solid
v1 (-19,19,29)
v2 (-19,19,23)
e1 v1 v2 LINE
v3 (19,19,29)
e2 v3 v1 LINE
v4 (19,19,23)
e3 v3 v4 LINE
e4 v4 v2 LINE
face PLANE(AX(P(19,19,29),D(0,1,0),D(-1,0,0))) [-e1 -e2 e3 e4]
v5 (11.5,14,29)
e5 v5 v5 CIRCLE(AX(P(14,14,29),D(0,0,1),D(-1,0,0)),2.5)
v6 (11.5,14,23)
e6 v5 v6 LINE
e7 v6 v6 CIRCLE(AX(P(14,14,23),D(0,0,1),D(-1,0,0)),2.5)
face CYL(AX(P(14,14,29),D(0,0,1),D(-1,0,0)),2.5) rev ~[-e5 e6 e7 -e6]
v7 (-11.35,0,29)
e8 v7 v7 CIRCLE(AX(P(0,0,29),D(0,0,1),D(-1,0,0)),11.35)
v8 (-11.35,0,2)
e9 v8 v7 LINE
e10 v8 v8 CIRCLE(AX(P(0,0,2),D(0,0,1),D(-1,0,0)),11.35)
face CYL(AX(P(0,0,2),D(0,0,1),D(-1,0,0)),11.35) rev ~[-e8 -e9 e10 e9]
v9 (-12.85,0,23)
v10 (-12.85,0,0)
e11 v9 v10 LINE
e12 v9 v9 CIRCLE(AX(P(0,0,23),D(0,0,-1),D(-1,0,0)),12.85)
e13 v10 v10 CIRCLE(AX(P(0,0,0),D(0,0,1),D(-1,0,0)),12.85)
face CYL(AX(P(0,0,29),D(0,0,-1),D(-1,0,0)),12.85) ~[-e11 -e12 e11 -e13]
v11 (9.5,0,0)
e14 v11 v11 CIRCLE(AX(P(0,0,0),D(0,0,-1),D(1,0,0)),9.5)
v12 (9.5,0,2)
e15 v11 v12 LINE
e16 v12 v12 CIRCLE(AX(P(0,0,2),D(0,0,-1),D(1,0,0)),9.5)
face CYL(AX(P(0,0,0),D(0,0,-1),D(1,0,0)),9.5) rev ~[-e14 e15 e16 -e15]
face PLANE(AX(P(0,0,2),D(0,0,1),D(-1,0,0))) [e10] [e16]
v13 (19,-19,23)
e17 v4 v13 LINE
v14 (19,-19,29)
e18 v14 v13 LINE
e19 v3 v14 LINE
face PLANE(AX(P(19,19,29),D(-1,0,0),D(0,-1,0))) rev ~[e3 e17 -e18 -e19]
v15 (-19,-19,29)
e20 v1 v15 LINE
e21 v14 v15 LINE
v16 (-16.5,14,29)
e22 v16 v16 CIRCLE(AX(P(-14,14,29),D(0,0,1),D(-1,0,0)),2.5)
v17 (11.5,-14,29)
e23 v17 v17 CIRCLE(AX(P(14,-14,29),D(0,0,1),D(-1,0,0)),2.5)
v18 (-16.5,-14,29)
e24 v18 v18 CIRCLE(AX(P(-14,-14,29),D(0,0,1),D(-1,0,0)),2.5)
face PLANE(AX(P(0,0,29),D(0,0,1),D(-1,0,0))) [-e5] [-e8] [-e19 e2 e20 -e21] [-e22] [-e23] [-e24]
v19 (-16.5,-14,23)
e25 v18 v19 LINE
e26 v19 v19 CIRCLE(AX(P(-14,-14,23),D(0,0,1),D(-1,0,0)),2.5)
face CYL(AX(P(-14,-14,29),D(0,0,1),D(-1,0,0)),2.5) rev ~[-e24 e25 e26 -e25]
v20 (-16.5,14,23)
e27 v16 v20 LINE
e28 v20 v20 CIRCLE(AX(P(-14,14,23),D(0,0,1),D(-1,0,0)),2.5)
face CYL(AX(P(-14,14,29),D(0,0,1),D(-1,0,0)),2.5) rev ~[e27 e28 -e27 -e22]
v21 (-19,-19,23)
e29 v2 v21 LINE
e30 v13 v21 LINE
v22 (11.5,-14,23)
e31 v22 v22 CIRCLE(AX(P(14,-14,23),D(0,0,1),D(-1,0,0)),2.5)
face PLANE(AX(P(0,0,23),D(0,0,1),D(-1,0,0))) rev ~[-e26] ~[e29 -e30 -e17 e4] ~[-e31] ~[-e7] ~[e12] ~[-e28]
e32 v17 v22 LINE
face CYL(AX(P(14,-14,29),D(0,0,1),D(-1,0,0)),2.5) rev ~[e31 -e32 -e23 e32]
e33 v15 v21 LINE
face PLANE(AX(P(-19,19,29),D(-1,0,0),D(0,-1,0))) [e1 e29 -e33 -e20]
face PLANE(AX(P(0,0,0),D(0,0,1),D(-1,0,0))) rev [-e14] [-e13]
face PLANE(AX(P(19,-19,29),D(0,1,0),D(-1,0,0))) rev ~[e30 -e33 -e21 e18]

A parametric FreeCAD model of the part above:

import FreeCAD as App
import Part
import Sketcher
from FreeCAD import Vector


def add_polygon(sketch, points):
    """Adds a closed chain of lines whose ends are joined by coincident constraints."""
    first, n = sketch.GeometryCount, len(points)
    for a, b in zip(points, points[1:] + points[:1]):
        sketch.addGeometry(Part.LineSegment(App.Vector(*a, 0), App.Vector(*b, 0)), False)
    for i in range(n):
        sketch.addConstraint(Sketcher.Constraint("Coincident", first + i, 2, first + (i + 1) % n, 1))

doc = App.newDocument("Part")
body = doc.addObject("PartDesign::Body", "Body")

# Sketch on XZ plane
sketch1 = body.newObject("Sketcher::SketchObject", "Sketch")
sketch1.AttachmentSupport = (doc.getObject("XZ_Plane"), [""])
sketch1.MapMode = "FlatFace"
add_polygon(sketch1, [(-11.3, 2), (-11.3, 29), (-12.8, 29), (-12.8, 0), (0, 0), (0, 2)])  # lines 0-5
sketch1.addConstraint(Sketcher.Constraint("Vertical", 0))
sketch1.addConstraint(Sketcher.Constraint("Horizontal", 1))
sketch1.addConstraint(Sketcher.Constraint("Vertical", 2))
sketch1.addConstraint(Sketcher.Constraint("Horizontal", 3))
sketch1.addConstraint(Sketcher.Constraint("Vertical", 4))
sketch1.addConstraint(Sketcher.Constraint("Horizontal", 5))
sketch1.addConstraint(Sketcher.Constraint("Coincident", 3, 2, -1, 1))
sketch1.addConstraint(Sketcher.Constraint("DistanceY", 0, 1, 0, 2, 27.0))
sketch1.addConstraint(Sketcher.Constraint("DistanceY", 2, 2, 2, 1, 29.0))
sketch1.addConstraint(Sketcher.Constraint("DistanceX", 1, 2, 1, 1, 1.5))
sketch1.addConstraint(Sketcher.Constraint("DistanceX", 3, 1, 3, 2, 12.85))
revolution = body.newObject("PartDesign::Revolution", "Revolution")
revolution.Profile = sketch1
revolution.ReferenceAxis = (sketch1, ["V_Axis"])
revolution.Angle = 360

# Sketch on XY plane
sketch2 = body.newObject("Sketcher::SketchObject", "Sketch001")
sketch2.AttachmentSupport = (doc.getObject("XY_Plane"), [""])
sketch2.MapMode = "FlatFace"
sketch2.addGeometry(Part.Circle(Vector(0, 0, 0), Vector(0, 0, 1), 10), False)
sketch2.addConstraint(Sketcher.Constraint("Coincident", 0, 3, -1, 1))
sketch2.addConstraint(Sketcher.Constraint("Diameter", 0, 19.0))
pocket1 = body.newObject("PartDesign::Pocket", "Pocket")
pocket1.Profile = sketch2
pocket1.Length = 2
pocket1.Reversed = True

# Sketch on XY plane
sketch3 = body.newObject("Sketcher::SketchObject", "Sketch002")
sketch3.AttachmentSupport = (doc.getObject("XY_Plane"), [""])
sketch3.MapMode = "FlatFace"
sketch3.AttachmentOffset = App.Placement(Vector(0, 0, 29), App.Rotation())
add_polygon(sketch3, [(19, -19), (19, 19), (-19, 19), (-19, -19)])  # lines 0-3
sketch3.addGeometry(Part.Circle(Vector(14, 14, 0), Vector(0, 0, 1), 2.5), False)  # 4
sketch3.addGeometry(Part.Circle(Vector(-14, 14, 0), Vector(0, 0, 1), 2.5), False)  # 5
sketch3.addGeometry(Part.Circle(Vector(14, -14, 0), Vector(0, 0, 1), 2.5), False)  # 6
sketch3.addGeometry(Part.Circle(Vector(0, 0, 0), Vector(0, 0, 1), 11.3), False)  # 7
sketch3.addGeometry(Part.Circle(Vector(-14, -14, 0), Vector(0, 0, 1), 2.5), False)  # 8
sketch3.addConstraint(Sketcher.Constraint("Vertical", 0))
sketch3.addConstraint(Sketcher.Constraint("Horizontal", 1))
sketch3.addConstraint(Sketcher.Constraint("Vertical", 2))
sketch3.addConstraint(Sketcher.Constraint("Horizontal", 3))
sketch3.addConstraint(Sketcher.Constraint("Coincident", 7, 3, -1, 1))
sketch3.addConstraint(Sketcher.Constraint("Equal", 4, 5))
sketch3.addConstraint(Sketcher.Constraint("Equal", 5, 6))
sketch3.addConstraint(Sketcher.Constraint("Equal", 6, 8))
sketch3.addConstraint(Sketcher.Constraint("Symmetric", 5, 3, 6, 3, -1, 1))
sketch3.addConstraint(Sketcher.Constraint("Symmetric", 4, 3, 8, 3, -1, 1))
sketch3.addConstraint(Sketcher.Constraint("Symmetric", 0, 2, 2, 2, -1, 1))
sketch3.addConstraint(Sketcher.Constraint("Symmetric", 4, 3, 5, 3, -2))
sketch3.addConstraint(Sketcher.Constraint("Equal", 3, 0))
sketch3.addConstraint(Sketcher.Constraint("Diameter", 4, 5.0))
sketch3.addConstraint(Sketcher.Constraint("Diameter", 7, 22.7))
sketch3.addConstraint(Sketcher.Constraint("DistanceX", 1, 2, 1, 1, 38.0))
sketch3.addConstraint(Sketcher.Constraint("DistanceX", -1, 1, 4, 3, 14.0))
sketch3.addConstraint(Sketcher.Constraint("DistanceY", -1, 1, 4, 3, 14.0))
pad1 = body.newObject("PartDesign::Pad", "Pad")
pad1.Profile = sketch3
pad1.Length = 6
pad1.Reversed = True

doc.recompute()
